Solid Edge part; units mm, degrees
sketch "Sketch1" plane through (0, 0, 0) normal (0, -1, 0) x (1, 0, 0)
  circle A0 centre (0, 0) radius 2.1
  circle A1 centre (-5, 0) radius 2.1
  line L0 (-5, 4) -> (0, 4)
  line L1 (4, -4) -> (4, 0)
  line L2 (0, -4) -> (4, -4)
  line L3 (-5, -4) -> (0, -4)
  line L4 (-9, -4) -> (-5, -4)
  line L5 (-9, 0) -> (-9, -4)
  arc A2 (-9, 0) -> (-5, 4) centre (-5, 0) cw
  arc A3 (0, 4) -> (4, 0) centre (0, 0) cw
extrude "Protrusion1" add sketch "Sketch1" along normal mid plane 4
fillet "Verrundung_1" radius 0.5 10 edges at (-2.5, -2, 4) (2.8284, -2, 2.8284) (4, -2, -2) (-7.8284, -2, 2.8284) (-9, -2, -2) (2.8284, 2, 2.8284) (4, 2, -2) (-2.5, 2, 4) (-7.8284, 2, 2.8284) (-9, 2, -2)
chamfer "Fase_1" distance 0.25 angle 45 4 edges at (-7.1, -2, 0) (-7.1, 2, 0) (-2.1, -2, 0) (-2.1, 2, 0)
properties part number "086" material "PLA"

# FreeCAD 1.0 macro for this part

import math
import FreeCAD as App
import Part
import Sketcher
from FreeCAD import Vector


def edges_at(feature, points):
    """Names of the edges that pass closest to the given points."""
    edges = feature.Shape.Edges
    near = lambda p: min(range(len(edges)), key=lambda i: edges[i].distToShape(Part.Vertex(*p))[0])
    return sorted({f"Edge{near(p) + 1}" for p in points})

doc = App.newDocument("Part")
body = doc.addObject("PartDesign::Body", "Body")

# Sketch on XZ plane
sketch1 = body.newObject("Sketcher::SketchObject", "Sketch")
sketch1.AttachmentSupport = (doc.getObject("XZ_Plane"), [""])
sketch1.MapMode = "FlatFace"
sketch1.addGeometry([
    Part.LineSegment(Vector(0, 4, 0), Vector(-5, 4, 0)),  # 0
    Part.ArcOfCircle(Part.Circle(Vector(-5, 0, 0), Vector(0, 0, 1), 4), math.radians(90), math.radians(180)),  # 1
    Part.LineSegment(Vector(-9, 0, 0), Vector(-9, -4, 0)),  # 2
    Part.LineSegment(Vector(-9, -4, 0), Vector(4, -4, 0)),  # 3
    Part.LineSegment(Vector(4, -4, 0), Vector(4, 0, 0)),  # 4
    Part.ArcOfCircle(Part.Circle(Vector(0, 0, 0), Vector(0, 0, 1), 4), math.radians(0), math.radians(90)),  # 5
    Part.Circle(Vector(-5, 0, 0), Vector(0, 0, 1), 2.1),  # 6
    Part.Circle(Vector(0, 0, 0), Vector(0, 0, 1), 2.1),  # 7
], False)
sketch1.addConstraint([
    Sketcher.Constraint("Tangent", 0, 2, 1, 1),
    Sketcher.Constraint("Tangent", 1, 2, 2, 1),
    Sketcher.Constraint("Coincident", 2, 2, 3, 1),
    Sketcher.Constraint("Coincident", 3, 2, 4, 1),
    Sketcher.Constraint("Tangent", 4, 2, 5, 1),
    Sketcher.Constraint("Tangent", 5, 2, 0, 1),
    Sketcher.Constraint("Horizontal", 0),
    Sketcher.Constraint("Vertical", 2),
    Sketcher.Constraint("Horizontal", 3),
    Sketcher.Constraint("Vertical", 4),
    Sketcher.Constraint("Coincident", 5, 3, -1, 1),
    Sketcher.Constraint("Coincident", 7, 3, -1, 1),
    Sketcher.Constraint("Coincident", 6, 3, 1, 3),
    Sketcher.Constraint("Equal", 1, 5),
    Sketcher.Constraint("Equal", 6, 7),
    Sketcher.Constraint("Radius", 1, 4.0),
    Sketcher.Constraint("Diameter", 6, 4.2),
    Sketcher.Constraint("DistanceX", 0, 2, 0, 1, 5.0),
    Sketcher.Constraint("DistanceY", 2, 2, 2, 1, 4.0),
])
pad1 = body.newObject("PartDesign::Pad", "Pad")
pad1.Profile = sketch1
pad1.Length = 4
pad1.Midplane = True
doc.recompute()

fillet = body.newObject("PartDesign::Fillet", "Fillet")
fillet.Base = (pad1, edges_at(pad1, [
    (-2.5, -2, 4),
    (2.828, -2, 2.828),
    (4, -2, -2),
    (-7.828, -2, 2.828),
    (-9, -2, -2),
    (2.828, 2, 2.828),
    (4, 2, -2),
    (-2.5, 2, 4),
    (-7.828, 2, 2.828),
    (-9, 2, -2),
]))
fillet.Radius = 0.5
doc.recompute()

chamfer = body.newObject("PartDesign::Chamfer", "Chamfer")
chamfer.Base = (fillet, edges_at(fillet, [
    (-7.1, -2, 0),
    (-7.1, 2, 0),
    (-2.1, -2, 0),
    (-2.1, 2, 0),
]))
chamfer.Size = 0.25

doc.recompute()
